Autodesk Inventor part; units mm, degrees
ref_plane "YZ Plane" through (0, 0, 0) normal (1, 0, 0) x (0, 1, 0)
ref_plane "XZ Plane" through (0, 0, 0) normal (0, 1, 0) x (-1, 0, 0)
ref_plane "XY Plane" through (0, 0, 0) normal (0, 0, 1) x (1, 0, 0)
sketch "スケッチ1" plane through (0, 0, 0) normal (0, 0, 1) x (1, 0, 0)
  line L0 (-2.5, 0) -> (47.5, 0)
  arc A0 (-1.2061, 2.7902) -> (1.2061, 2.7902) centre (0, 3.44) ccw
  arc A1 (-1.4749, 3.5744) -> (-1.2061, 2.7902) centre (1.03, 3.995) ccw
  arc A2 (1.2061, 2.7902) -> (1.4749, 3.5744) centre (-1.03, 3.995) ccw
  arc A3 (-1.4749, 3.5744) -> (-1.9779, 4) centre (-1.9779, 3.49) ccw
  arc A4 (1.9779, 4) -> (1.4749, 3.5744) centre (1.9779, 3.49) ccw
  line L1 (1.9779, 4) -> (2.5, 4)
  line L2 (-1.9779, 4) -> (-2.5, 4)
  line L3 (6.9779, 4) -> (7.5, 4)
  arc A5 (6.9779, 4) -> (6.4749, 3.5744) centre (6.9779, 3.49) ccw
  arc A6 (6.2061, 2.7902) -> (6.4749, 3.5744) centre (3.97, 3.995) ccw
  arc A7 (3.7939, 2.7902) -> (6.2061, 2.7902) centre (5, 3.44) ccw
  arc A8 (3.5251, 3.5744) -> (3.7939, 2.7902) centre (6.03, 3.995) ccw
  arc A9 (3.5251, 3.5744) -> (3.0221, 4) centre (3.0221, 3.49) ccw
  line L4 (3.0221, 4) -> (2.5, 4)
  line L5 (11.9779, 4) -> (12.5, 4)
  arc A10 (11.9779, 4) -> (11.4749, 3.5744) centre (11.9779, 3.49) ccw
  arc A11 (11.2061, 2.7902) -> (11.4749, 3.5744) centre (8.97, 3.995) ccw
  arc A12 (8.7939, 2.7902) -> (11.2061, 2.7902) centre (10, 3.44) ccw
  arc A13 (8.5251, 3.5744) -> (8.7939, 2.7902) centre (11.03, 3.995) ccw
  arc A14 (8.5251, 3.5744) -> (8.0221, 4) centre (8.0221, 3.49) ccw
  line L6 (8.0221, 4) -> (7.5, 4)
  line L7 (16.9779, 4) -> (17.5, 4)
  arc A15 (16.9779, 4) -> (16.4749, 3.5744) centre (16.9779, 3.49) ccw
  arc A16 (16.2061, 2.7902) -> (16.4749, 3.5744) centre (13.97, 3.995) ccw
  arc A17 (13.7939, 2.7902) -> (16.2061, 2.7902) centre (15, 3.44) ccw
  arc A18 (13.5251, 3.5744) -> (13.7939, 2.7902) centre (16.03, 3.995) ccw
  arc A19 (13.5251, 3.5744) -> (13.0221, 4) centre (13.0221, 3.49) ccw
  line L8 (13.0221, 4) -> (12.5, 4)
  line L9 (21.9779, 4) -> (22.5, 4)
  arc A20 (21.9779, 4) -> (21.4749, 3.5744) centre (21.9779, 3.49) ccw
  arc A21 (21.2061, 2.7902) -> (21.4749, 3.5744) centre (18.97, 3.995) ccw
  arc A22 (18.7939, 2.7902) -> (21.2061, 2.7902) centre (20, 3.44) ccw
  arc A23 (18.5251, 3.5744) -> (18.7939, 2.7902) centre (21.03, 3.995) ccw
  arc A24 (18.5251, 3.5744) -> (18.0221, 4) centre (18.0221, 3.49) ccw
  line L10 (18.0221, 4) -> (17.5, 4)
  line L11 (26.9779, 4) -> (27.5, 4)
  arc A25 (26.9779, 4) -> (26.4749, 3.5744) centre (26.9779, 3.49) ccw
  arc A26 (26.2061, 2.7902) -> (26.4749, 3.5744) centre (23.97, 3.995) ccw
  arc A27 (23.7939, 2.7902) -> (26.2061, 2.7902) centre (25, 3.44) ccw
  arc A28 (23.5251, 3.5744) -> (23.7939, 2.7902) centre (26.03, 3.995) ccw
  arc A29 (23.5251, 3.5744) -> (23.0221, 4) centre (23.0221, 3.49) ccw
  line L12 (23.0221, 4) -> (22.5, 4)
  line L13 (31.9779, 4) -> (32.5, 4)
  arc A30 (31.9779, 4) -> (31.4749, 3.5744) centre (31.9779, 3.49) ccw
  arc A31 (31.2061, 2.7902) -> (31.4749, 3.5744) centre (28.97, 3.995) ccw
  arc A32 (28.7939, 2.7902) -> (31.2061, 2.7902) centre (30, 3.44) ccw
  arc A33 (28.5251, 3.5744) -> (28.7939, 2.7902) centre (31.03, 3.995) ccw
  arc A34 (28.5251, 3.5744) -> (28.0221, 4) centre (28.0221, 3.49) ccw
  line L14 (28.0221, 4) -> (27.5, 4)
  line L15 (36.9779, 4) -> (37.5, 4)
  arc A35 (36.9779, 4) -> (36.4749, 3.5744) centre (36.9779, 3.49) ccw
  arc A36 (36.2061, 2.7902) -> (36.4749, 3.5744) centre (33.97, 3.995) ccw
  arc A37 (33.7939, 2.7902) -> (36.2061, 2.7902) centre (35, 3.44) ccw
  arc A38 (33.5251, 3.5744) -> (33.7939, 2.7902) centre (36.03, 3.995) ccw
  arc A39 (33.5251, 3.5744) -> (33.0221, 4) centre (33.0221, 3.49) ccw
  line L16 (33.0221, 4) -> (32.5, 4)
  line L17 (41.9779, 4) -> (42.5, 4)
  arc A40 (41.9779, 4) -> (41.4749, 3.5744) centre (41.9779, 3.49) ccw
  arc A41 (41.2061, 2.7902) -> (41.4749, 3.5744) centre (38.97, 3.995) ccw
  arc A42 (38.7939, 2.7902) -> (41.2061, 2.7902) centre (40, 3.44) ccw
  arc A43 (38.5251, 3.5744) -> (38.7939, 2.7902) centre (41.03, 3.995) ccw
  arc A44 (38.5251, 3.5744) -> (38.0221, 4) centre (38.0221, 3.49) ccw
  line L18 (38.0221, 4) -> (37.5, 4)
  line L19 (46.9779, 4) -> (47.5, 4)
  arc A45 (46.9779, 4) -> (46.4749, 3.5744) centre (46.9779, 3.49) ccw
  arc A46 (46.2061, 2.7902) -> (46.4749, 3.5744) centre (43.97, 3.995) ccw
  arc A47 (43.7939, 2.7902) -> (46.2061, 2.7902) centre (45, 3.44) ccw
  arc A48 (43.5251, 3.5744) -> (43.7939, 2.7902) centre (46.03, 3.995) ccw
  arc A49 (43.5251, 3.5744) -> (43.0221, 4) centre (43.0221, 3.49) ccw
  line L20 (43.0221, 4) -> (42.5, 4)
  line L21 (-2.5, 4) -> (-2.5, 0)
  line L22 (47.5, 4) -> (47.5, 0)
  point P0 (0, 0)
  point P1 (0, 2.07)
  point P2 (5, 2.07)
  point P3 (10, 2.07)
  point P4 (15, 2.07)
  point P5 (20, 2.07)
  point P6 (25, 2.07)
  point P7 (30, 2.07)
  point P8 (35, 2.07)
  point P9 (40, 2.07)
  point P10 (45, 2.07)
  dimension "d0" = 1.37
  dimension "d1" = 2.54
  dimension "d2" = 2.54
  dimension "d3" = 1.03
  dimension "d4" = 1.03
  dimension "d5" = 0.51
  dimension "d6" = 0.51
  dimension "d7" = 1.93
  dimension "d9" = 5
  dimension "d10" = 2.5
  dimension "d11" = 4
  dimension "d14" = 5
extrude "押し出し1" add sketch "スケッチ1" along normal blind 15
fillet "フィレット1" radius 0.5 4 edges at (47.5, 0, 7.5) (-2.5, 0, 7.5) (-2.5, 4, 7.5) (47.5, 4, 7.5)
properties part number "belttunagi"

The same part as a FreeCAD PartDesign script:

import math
import FreeCAD as App
import Part
import Sketcher

V = App.Vector
Q = App.Units.Quantity


def edges_at(feature, points):
    """Names of the edges that pass closest to the given points."""
    edges = feature.Shape.Edges
    near = lambda p: min(range(len(edges)), key=lambda i: edges[i].distToShape(Part.Vertex(*p))[0])
    return sorted({f"Edge{near(p) + 1}" for p in points})

doc = App.newDocument("Part")
params = doc.addObject("Spreadsheet::Sheet", "Params")
for row, (alias, value) in enumerate([
    ("sketch1_height", "4 mm"),
    ("sketch1_height2", "4 mm"),
    ("sketch1_radius", "0.51 mm"),
    ("sketch1_radius2", "1.37 mm"),
    ("sketch1_radius3", "0.51 mm"),
    ("pad1_length", "15 mm"),
    ("fillet_radius", "0.5 mm"),
], start=1):
    params.set(f"A{row}", alias)
    params.set(f"B{row}", "=" + value)
    params.setAlias(f"B{row}", alias)

body = doc.addObject("PartDesign::Body", "Body")

# Sketch on XY plane
sketch1 = doc.addObject("Sketcher::SketchObject", "Sketch")
body.addObject(sketch1)
sketch1.AttachmentSupport = (doc.XY_Plane, [""])
sketch1.MapMode = "FlatFace"
sketch1.addGeometry(Part.LineSegment(V(-2.5, 4, 0), V(-2.5, 0, 0)), False)
sketch1.addGeometry(Part.LineSegment(V(-2.5, 0, 0), V(47.5, 0, 0)), False)
sketch1.addGeometry(Part.LineSegment(V(47.5, 0, 0), V(47.5, 4, 0)), False)
sketch1.addGeometry(Part.LineSegment(V(47.5, 4, 0), V(46.9779, 4, 0)), False)
sketch1.addGeometry(Part.ArcOfCircle(Part.Circle(V(46.9779, 3.49, 0), V(0, 0, 1), 0.51), math.radians(90), math.radians(170.474886)), False)
sketch1.addGeometry(Part.ArcOfCircle(Part.Circle(V(43.971739, 3.994239, 0), V(0, 0, 1), 2.538125), math.radians(-28.319084), math.radians(-9.521239)), False)
sketch1.addGeometry(Part.ArcOfCircle(Part.Circle(V(45, 3.44, 0), V(0, 0, 1), 1.370006), math.radians(-151.685931), math.radians(-28.314069)), False)
sketch1.addGeometry(Part.ArcOfCircle(Part.Circle(V(46.031843, 3.995467, 0), V(0, 0, 1), 2.541861), math.radians(-170.464821), math.radians(-151.694857)), False)
sketch1.addGeometry(Part.ArcOfCircle(Part.Circle(V(43.0221, 3.49, 0), V(0, 0, 1), 0.510032), math.radians(9.525114), math.radians(90)), False)
sketch1.addGeometry(Part.LineSegment(V(43.0221, 4, 0), V(41.9779, 4, 0)), False)
sketch1.addGeometry(Part.ArcOfCircle(Part.Circle(V(41.9779, 3.49, 0), V(0, 0, 1), 0.51), math.radians(90), math.radians(170.474886)), False)
sketch1.addGeometry(Part.ArcOfCircle(Part.Circle(V(38.971739, 3.994239, 0), V(0, 0, 1), 2.538125), math.radians(-28.319084), math.radians(-9.521239)), False)
sketch1.addGeometry(Part.ArcOfCircle(Part.Circle(V(40, 3.44, 0), V(0, 0, 1), 1.370006), math.radians(-151.685931), math.radians(-28.314069)), False)
sketch1.addGeometry(Part.ArcOfCircle(Part.Circle(V(41.031843, 3.995467, 0), V(0, 0, 1), 2.541861), math.radians(-170.464821), math.radians(-151.694857)), False)
sketch1.addGeometry(Part.ArcOfCircle(Part.Circle(V(38.0221, 3.49, 0), V(0, 0, 1), 0.510032), math.radians(9.525114), math.radians(90)), False)
sketch1.addGeometry(Part.LineSegment(V(38.0221, 4, 0), V(36.9779, 4, 0)), False)
sketch1.addGeometry(Part.ArcOfCircle(Part.Circle(V(36.9779, 3.49, 0), V(0, 0, 1), 0.51), math.radians(90), math.radians(170.474886)), False)
sketch1.addGeometry(Part.ArcOfCircle(Part.Circle(V(33.971739, 3.994239, 0), V(0, 0, 1), 2.538125), math.radians(-28.319084), math.radians(-9.521239)), False)
sketch1.addGeometry(Part.ArcOfCircle(Part.Circle(V(35, 3.44, 0), V(0, 0, 1), 1.370006), math.radians(-151.685931), math.radians(-28.314069)), False)
sketch1.addGeometry(Part.ArcOfCircle(Part.Circle(V(36.031843, 3.995467, 0), V(0, 0, 1), 2.541861), math.radians(-170.464821), math.radians(-151.694857)), False)
sketch1.addGeometry(Part.ArcOfCircle(Part.Circle(V(33.0221, 3.49, 0), V(0, 0, 1), 0.510032), math.radians(9.525114), math.radians(90)), False)
sketch1.addGeometry(Part.LineSegment(V(33.0221, 4, 0), V(31.9779, 4, 0)), False)
sketch1.addGeometry(Part.ArcOfCircle(Part.Circle(V(31.9779, 3.49, 0), V(0, 0, 1), 0.51), math.radians(90), math.radians(170.474886)), False)
sketch1.addGeometry(Part.ArcOfCircle(Part.Circle(V(28.971739, 3.994239, 0), V(0, 0, 1), 2.538125), math.radians(-28.319084), math.radians(-9.521239)), False)
sketch1.addGeometry(Part.ArcOfCircle(Part.Circle(V(30, 3.44, 0), V(0, 0, 1), 1.370006), math.radians(-151.685931), math.radians(-28.314069)), False)
sketch1.addGeometry(Part.ArcOfCircle(Part.Circle(V(31.031843, 3.995467, 0), V(0, 0, 1), 2.541861), math.radians(-170.464821), math.radians(-151.694857)), False)
sketch1.addGeometry(Part.ArcOfCircle(Part.Circle(V(28.0221, 3.49, 0), V(0, 0, 1), 0.510032), math.radians(9.525114), math.radians(90)), False)
sketch1.addGeometry(Part.LineSegment(V(28.0221, 4, 0), V(26.9779, 4, 0)), False)
sketch1.addGeometry(Part.ArcOfCircle(Part.Circle(V(26.9779, 3.49, 0), V(0, 0, 1), 0.51), math.radians(90), math.radians(170.474886)), False)
sketch1.addGeometry(Part.ArcOfCircle(Part.Circle(V(23.971739, 3.994239, 0), V(0, 0, 1), 2.538125), math.radians(-28.319084), math.radians(-9.521239)), False)
sketch1.addGeometry(Part.ArcOfCircle(Part.Circle(V(25, 3.44, 0), V(0, 0, 1), 1.370006), math.radians(-151.685931), math.radians(-28.314069)), False)
sketch1.addGeometry(Part.ArcOfCircle(Part.Circle(V(26.031843, 3.995467, 0), V(0, 0, 1), 2.541861), math.radians(-170.464821), math.radians(-151.694857)), False)
sketch1.addGeometry(Part.ArcOfCircle(Part.Circle(V(23.0221, 3.49, 0), V(0, 0, 1), 0.510032), math.radians(9.525114), math.radians(90)), False)
sketch1.addGeometry(Part.LineSegment(V(23.0221, 4, 0), V(21.9779, 4, 0)), False)
sketch1.addGeometry(Part.ArcOfCircle(Part.Circle(V(21.9779, 3.49, 0), V(0, 0, 1), 0.51), math.radians(90), math.radians(170.474886)), False)
sketch1.addGeometry(Part.ArcOfCircle(Part.Circle(V(18.971739, 3.994239, 0), V(0, 0, 1), 2.538125), math.radians(-28.319084), math.radians(-9.521239)), False)
sketch1.addGeometry(Part.ArcOfCircle(Part.Circle(V(20, 3.44, 0), V(0, 0, 1), 1.370006), math.radians(-151.685931), math.radians(-28.314069)), False)
sketch1.addGeometry(Part.ArcOfCircle(Part.Circle(V(21.031843, 3.995467, 0), V(0, 0, 1), 2.541861), math.radians(-170.464821), math.radians(-151.694857)), False)
sketch1.addGeometry(Part.ArcOfCircle(Part.Circle(V(18.0221, 3.49, 0), V(0, 0, 1), 0.510032), math.radians(9.525114), math.radians(90)), False)
sketch1.addGeometry(Part.LineSegment(V(18.0221, 4, 0), V(16.9779, 4, 0)), False)
sketch1.addGeometry(Part.ArcOfCircle(Part.Circle(V(16.9779, 3.49, 0), V(0, 0, 1), 0.51), math.radians(90), math.radians(170.474886)), False)
sketch1.addGeometry(Part.ArcOfCircle(Part.Circle(V(13.971739, 3.994239, 0), V(0, 0, 1), 2.538125), math.radians(-28.319084), math.radians(-9.521239)), False)
sketch1.addGeometry(Part.ArcOfCircle(Part.Circle(V(15, 3.44, 0), V(0, 0, 1), 1.370006), math.radians(-151.685931), math.radians(-28.314069)), False)
sketch1.addGeometry(Part.ArcOfCircle(Part.Circle(V(16.031843, 3.995467, 0), V(0, 0, 1), 2.541861), math.radians(-170.464821), math.radians(-151.694857)), False)
sketch1.addGeometry(Part.ArcOfCircle(Part.Circle(V(13.0221, 3.49, 0), V(0, 0, 1), 0.510032), math.radians(9.525114), math.radians(90)), False)
sketch1.addGeometry(Part.LineSegment(V(13.0221, 4, 0), V(11.9779, 4, 0)), False)
sketch1.addGeometry(Part.ArcOfCircle(Part.Circle(V(11.9779, 3.49, 0), V(0, 0, 1), 0.51), math.radians(90), math.radians(170.474886)), False)
sketch1.addGeometry(Part.ArcOfCircle(Part.Circle(V(8.971739, 3.994239, 0), V(0, 0, 1), 2.538125), math.radians(-28.319084), math.radians(-9.521239)), False)
sketch1.addGeometry(Part.ArcOfCircle(Part.Circle(V(10, 3.44, 0), V(0, 0, 1), 1.370006), math.radians(-151.685931), math.radians(-28.314069)), False)
sketch1.addGeometry(Part.ArcOfCircle(Part.Circle(V(11.031843, 3.995467, 0), V(0, 0, 1), 2.541861), math.radians(-170.464821), math.radians(-151.694857)), False)
sketch1.addGeometry(Part.ArcOfCircle(Part.Circle(V(8.0221, 3.49, 0), V(0, 0, 1), 0.510032), math.radians(9.525114), math.radians(90)), False)
sketch1.addGeometry(Part.LineSegment(V(8.0221, 4, 0), V(6.9779, 4, 0)), False)
sketch1.addGeometry(Part.ArcOfCircle(Part.Circle(V(6.9779, 3.49, 0), V(0, 0, 1), 0.51), math.radians(90), math.radians(170.474886)), False)
sketch1.addGeometry(Part.ArcOfCircle(Part.Circle(V(3.971739, 3.994239, 0), V(0, 0, 1), 2.538125), math.radians(-28.319084), math.radians(-9.521239)), False)
sketch1.addGeometry(Part.ArcOfCircle(Part.Circle(V(5, 3.44, 0), V(0, 0, 1), 1.370006), math.radians(-151.685931), math.radians(-28.314069)), False)
sketch1.addGeometry(Part.ArcOfCircle(Part.Circle(V(6.031843, 3.995467, 0), V(0, 0, 1), 2.541861), math.radians(-170.464821), math.radians(-151.694857)), False)
sketch1.addGeometry(Part.ArcOfCircle(Part.Circle(V(3.0221, 3.49, 0), V(0, 0, 1), 0.510032), math.radians(9.525114), math.radians(90)), False)
sketch1.addGeometry(Part.LineSegment(V(3.0221, 4, 0), V(1.9779, 4, 0)), False)
sketch1.addGeometry(Part.ArcOfCircle(Part.Circle(V(1.9779, 3.49, 0), V(0, 0, 1), 0.51), math.radians(90), math.radians(170.474886)), False)
sketch1.addGeometry(Part.ArcOfCircle(Part.Circle(V(-1.028261, 3.994239, 0), V(0, 0, 1), 2.538125), math.radians(-28.319084), math.radians(-9.521239)), False)
sketch1.addGeometry(Part.ArcOfCircle(Part.Circle(V(0, 3.44, 0), V(0, 0, 1), 1.370006), math.radians(-151.685931), math.radians(-28.314069)), False)
sketch1.addGeometry(Part.ArcOfCircle(Part.Circle(V(1.031843, 3.995467, 0), V(0, 0, 1), 2.541861), math.radians(-170.464821), math.radians(-151.694857)), False)
sketch1.addGeometry(Part.ArcOfCircle(Part.Circle(V(-1.9779, 3.49, 0), V(0, 0, 1), 0.510032), math.radians(9.525114), math.radians(90)), False)
sketch1.addGeometry(Part.LineSegment(V(-1.9779, 4, 0), V(-2.5, 4, 0)), False)
sketch1.addConstraint(Sketcher.Constraint("Coincident", 0, 2, 1, 1))
sketch1.addConstraint(Sketcher.Constraint("Coincident", 1, 2, 2, 1))
sketch1.addConstraint(Sketcher.Constraint("Coincident", 2, 2, 3, 1))
sketch1.addConstraint(Sketcher.Constraint("Coincident", 3, 2, 4, 1))
sketch1.addConstraint(Sketcher.Constraint("Coincident", 4, 2, 5, 2))
sketch1.addConstraint(Sketcher.Constraint("Coincident", 5, 1, 6, 2))
sketch1.addConstraint(Sketcher.Constraint("Coincident", 6, 1, 7, 2))
sketch1.addConstraint(Sketcher.Constraint("Coincident", 7, 1, 8, 1))
sketch1.addConstraint(Sketcher.Constraint("Coincident", 8, 2, 9, 1))
sketch1.addConstraint(Sketcher.Constraint("Coincident", 9, 2, 10, 1))
sketch1.addConstraint(Sketcher.Constraint("Coincident", 10, 2, 11, 2))
sketch1.addConstraint(Sketcher.Constraint("Coincident", 11, 1, 12, 2))
sketch1.addConstraint(Sketcher.Constraint("Coincident", 12, 1, 13, 2))
sketch1.addConstraint(Sketcher.Constraint("Coincident", 13, 1, 14, 1))
sketch1.addConstraint(Sketcher.Constraint("Coincident", 14, 2, 15, 1))
sketch1.addConstraint(Sketcher.Constraint("Coincident", 15, 2, 16, 1))
sketch1.addConstraint(Sketcher.Constraint("Coincident", 16, 2, 17, 2))
sketch1.addConstraint(Sketcher.Constraint("Coincident", 17, 1, 18, 2))
sketch1.addConstraint(Sketcher.Constraint("Coincident", 18, 1, 19, 2))
sketch1.addConstraint(Sketcher.Constraint("Coincident", 19, 1, 20, 1))
sketch1.addConstraint(Sketcher.Constraint("Coincident", 20, 2, 21, 1))
sketch1.addConstraint(Sketcher.Constraint("Coincident", 21, 2, 22, 1))
sketch1.addConstraint(Sketcher.Constraint("Coincident", 22, 2, 23, 2))
sketch1.addConstraint(Sketcher.Constraint("Coincident", 23, 1, 24, 2))
sketch1.addConstraint(Sketcher.Constraint("Coincident", 24, 1, 25, 2))
sketch1.addConstraint(Sketcher.Constraint("Coincident", 25, 1, 26, 1))
sketch1.addConstraint(Sketcher.Constraint("Coincident", 26, 2, 27, 1))
sketch1.addConstraint(Sketcher.Constraint("Coincident", 27, 2, 28, 1))
sketch1.addConstraint(Sketcher.Constraint("Coincident", 28, 2, 29, 2))
sketch1.addConstraint(Sketcher.Constraint("Coincident", 29, 1, 30, 2))
sketch1.addConstraint(Sketcher.Constraint("Coincident", 30, 1, 31, 2))
sketch1.addConstraint(Sketcher.Constraint("Coincident", 31, 1, 32, 1))
sketch1.addConstraint(Sketcher.Constraint("Coincident", 32, 2, 33, 1))
sketch1.addConstraint(Sketcher.Constraint("Coincident", 33, 2, 34, 1))
sketch1.addConstraint(Sketcher.Constraint("Coincident", 34, 2, 35, 2))
sketch1.addConstraint(Sketcher.Constraint("Coincident", 35, 1, 36, 2))
sketch1.addConstraint(Sketcher.Constraint("Coincident", 36, 1, 37, 2))
sketch1.addConstraint(Sketcher.Constraint("Coincident", 37, 1, 38, 1))
sketch1.addConstraint(Sketcher.Constraint("Coincident", 38, 2, 39, 1))
sketch1.addConstraint(Sketcher.Constraint("Coincident", 39, 2, 40, 1))
sketch1.addConstraint(Sketcher.Constraint("Coincident", 40, 2, 41, 2))
sketch1.addConstraint(Sketcher.Constraint("Coincident", 41, 1, 42, 2))
sketch1.addConstraint(Sketcher.Constraint("Coincident", 42, 1, 43, 2))
sketch1.addConstraint(Sketcher.Constraint("Coincident", 43, 1, 44, 1))
sketch1.addConstraint(Sketcher.Constraint("Coincident", 44, 2, 45, 1))
sketch1.addConstraint(Sketcher.Constraint("Coincident", 45, 2, 46, 1))
sketch1.addConstraint(Sketcher.Constraint("Coincident", 46, 2, 47, 2))
sketch1.addConstraint(Sketcher.Constraint("Coincident", 47, 1, 48, 2))
sketch1.addConstraint(Sketcher.Constraint("Coincident", 48, 1, 49, 2))
sketch1.addConstraint(Sketcher.Constraint("Coincident", 49, 1, 50, 1))
sketch1.addConstraint(Sketcher.Constraint("Coincident", 50, 2, 51, 1))
sketch1.addConstraint(Sketcher.Constraint("Coincident", 51, 2, 52, 1))
sketch1.addConstraint(Sketcher.Constraint("Coincident", 52, 2, 53, 2))
sketch1.addConstraint(Sketcher.Constraint("Coincident", 53, 1, 54, 2))
sketch1.addConstraint(Sketcher.Constraint("Coincident", 54, 1, 55, 2))
sketch1.addConstraint(Sketcher.Constraint("Coincident", 55, 1, 56, 1))
sketch1.addConstraint(Sketcher.Constraint("Coincident", 56, 2, 57, 1))
sketch1.addConstraint(Sketcher.Constraint("Coincident", 57, 2, 58, 1))
sketch1.addConstraint(Sketcher.Constraint("Coincident", 58, 2, 59, 2))
sketch1.addConstraint(Sketcher.Constraint("Coincident", 59, 1, 60, 2))
sketch1.addConstraint(Sketcher.Constraint("Coincident", 60, 1, 61, 2))
sketch1.addConstraint(Sketcher.Constraint("Coincident", 61, 1, 62, 1))
sketch1.addConstraint(Sketcher.Constraint("Coincident", 62, 2, 63, 1))
sketch1.addConstraint(Sketcher.Constraint("Coincident", 63, 2, 0, 1))
sketch1.addConstraint(Sketcher.Constraint("Vertical", 0))
sketch1.addConstraint(Sketcher.Constraint("Horizontal", 1))
sketch1.addConstraint(Sketcher.Constraint("Vertical", 2))
sketch1.addConstraint(Sketcher.Constraint("Horizontal", 3))
sketch1.addConstraint(Sketcher.Constraint("Horizontal", 9))
sketch1.addConstraint(Sketcher.Constraint("Horizontal", 15))
sketch1.addConstraint(Sketcher.Constraint("Horizontal", 21))
sketch1.addConstraint(Sketcher.Constraint("Horizontal", 27))
sketch1.addConstraint(Sketcher.Constraint("Horizontal", 33))
sketch1.addConstraint(Sketcher.Constraint("Horizontal", 39))
sketch1.addConstraint(Sketcher.Constraint("Horizontal", 45))
sketch1.addConstraint(Sketcher.Constraint("Horizontal", 51))
sketch1.addConstraint(Sketcher.Constraint("Horizontal", 57))
sketch1.addConstraint(Sketcher.Constraint("Horizontal", 63))
sketch1.addConstraint(Sketcher.Constraint("PointOnObject", 60, 3, -2))
sketch1.addConstraint(Sketcher.Constraint("PointOnObject", 0, 2, -1))
sketch1.addConstraint(Sketcher.Constraint("DistanceY", 0, 2, 0, 1, Q("4 mm")))
sketch1.addConstraint(Sketcher.Constraint("DistanceY", 2, 1, 2, 2, Q("4 mm")))
sketch1.addConstraint(Sketcher.Constraint("Radius", 4, Q("0.51 mm")))
sketch1.addConstraint(Sketcher.Constraint("Radius", 6, Q("1.37 mm")))
sketch1.addConstraint(Sketcher.Constraint("Radius", 8, Q("0.51 mm")))
sketch1.addConstraint(Sketcher.Constraint("Radius", 10, Q("0.51 mm")))
sketch1.addConstraint(Sketcher.Constraint("Radius", 12, Q("1.37 mm")))
sketch1.addConstraint(Sketcher.Constraint("Radius", 14, Q("0.51 mm")))
sketch1.addConstraint(Sketcher.Constraint("Radius", 16, Q("0.51 mm")))
sketch1.addConstraint(Sketcher.Constraint("Radius", 18, Q("1.37 mm")))
sketch1.addConstraint(Sketcher.Constraint("Radius", 20, Q("0.51 mm")))
sketch1.addConstraint(Sketcher.Constraint("Radius", 22, Q("0.51 mm")))
sketch1.addConstraint(Sketcher.Constraint("Radius", 24, Q("1.37 mm")))
sketch1.addConstraint(Sketcher.Constraint("Radius", 26, Q("0.51 mm")))
sketch1.addConstraint(Sketcher.Constraint("Radius", 28, Q("0.51 mm")))
sketch1.addConstraint(Sketcher.Constraint("Radius", 30, Q("1.37 mm")))
sketch1.addConstraint(Sketcher.Constraint("Radius", 32, Q("0.51 mm")))
sketch1.addConstraint(Sketcher.Constraint("Radius", 34, Q("0.51 mm")))
sketch1.addConstraint(Sketcher.Constraint("Radius", 36, Q("1.37 mm")))
sketch1.addConstraint(Sketcher.Constraint("Radius", 38, Q("0.51 mm")))
sketch1.addConstraint(Sketcher.Constraint("Radius", 40, Q("0.51 mm")))
sketch1.addConstraint(Sketcher.Constraint("Radius", 42, Q("1.37 mm")))
sketch1.addConstraint(Sketcher.Constraint("Radius", 44, Q("0.51 mm")))
sketch1.addConstraint(Sketcher.Constraint("Radius", 46, Q("0.51 mm")))
sketch1.addConstraint(Sketcher.Constraint("Radius", 48, Q("1.37 mm")))
sketch1.addConstraint(Sketcher.Constraint("Radius", 50, Q("0.51 mm")))
sketch1.addConstraint(Sketcher.Constraint("Radius", 52, Q("0.51 mm")))
sketch1.addConstraint(Sketcher.Constraint("Radius", 54, Q("1.37 mm")))
sketch1.addConstraint(Sketcher.Constraint("Radius", 56, Q("0.51 mm")))
sketch1.addConstraint(Sketcher.Constraint("Radius", 58, Q("0.51 mm")))
sketch1.addConstraint(Sketcher.Constraint("Radius", 60, Q("1.37 mm")))
sketch1.addConstraint(Sketcher.Constraint("Radius", 62, Q("0.51 mm")))
sketch1.addConstraint(Sketcher.Constraint("DistanceX", -1, 1, 54, 3, Q("5 mm")))
sketch1.addConstraint(Sketcher.Constraint("DistanceY", -1, 1, 8, 2, Q("4 mm")))
sketch1.addConstraint(Sketcher.Constraint("DistanceY", -1, 1, 14, 2, Q("4 mm")))
sketch1.addConstraint(Sketcher.Constraint("DistanceY", -1, 1, 20, 2, Q("4 mm")))
sketch1.addConstraint(Sketcher.Constraint("DistanceY", -1, 1, 26, 2, Q("4 mm")))
sketch1.addConstraint(Sketcher.Constraint("DistanceY", -1, 1, 32, 2, Q("4 mm")))
sketch1.addConstraint(Sketcher.Constraint("DistanceY", -1, 1, 38, 2, Q("4 mm")))
sketch1.addConstraint(Sketcher.Constraint("DistanceY", -1, 1, 44, 2, Q("4 mm")))
sketch1.addConstraint(Sketcher.Constraint("DistanceY", -1, 1, 50, 2, Q("4 mm")))
sketch1.addConstraint(Sketcher.Constraint("DistanceY", -1, 1, 56, 2, Q("4 mm")))
sketch1.addConstraint(Sketcher.Constraint("DistanceX", 0, 2, -1, 1, Q("2.5 mm")))
sketch1.addConstraint(Sketcher.Constraint("DistanceX", 1, 1, 1, 2, Q("50 mm")))
sketch1.addConstraint(Sketcher.Constraint("DistanceX", -1, 1, 6, 3, Q("45 mm")))
sketch1.addConstraint(Sketcher.Constraint("DistanceX", -1, 1, 12, 3, Q("40 mm")))
sketch1.addConstraint(Sketcher.Constraint("DistanceX", -1, 1, 18, 3, Q("35 mm")))
sketch1.addConstraint(Sketcher.Constraint("DistanceX", -1, 1, 24, 3, Q("30 mm")))
sketch1.addConstraint(Sketcher.Constraint("DistanceX", -1, 1, 30, 3, Q("25 mm")))
sketch1.addConstraint(Sketcher.Constraint("DistanceX", -1, 1, 36, 3, Q("20 mm")))
sketch1.addConstraint(Sketcher.Constraint("DistanceX", -1, 1, 42, 3, Q("15 mm")))
sketch1.addConstraint(Sketcher.Constraint("DistanceX", -1, 1, 48, 3, Q("10 mm")))
sketch1.addConstraint(Sketcher.Constraint("Radius", 5, Q("2.5381 mm")))
sketch1.addConstraint(Sketcher.Constraint("Radius", 7, Q("2.5419 mm")))
sketch1.addConstraint(Sketcher.Constraint("Radius", 11, Q("2.5381 mm")))
sketch1.addConstraint(Sketcher.Constraint("Radius", 13, Q("2.5419 mm")))
sketch1.addConstraint(Sketcher.Constraint("Radius", 17, Q("2.5381 mm")))
sketch1.addConstraint(Sketcher.Constraint("Radius", 19, Q("2.5419 mm")))
sketch1.addConstraint(Sketcher.Constraint("Radius", 23, Q("2.5381 mm")))
sketch1.addConstraint(Sketcher.Constraint("Radius", 25, Q("2.5419 mm")))
sketch1.addConstraint(Sketcher.Constraint("Radius", 29, Q("2.5381 mm")))
sketch1.addConstraint(Sketcher.Constraint("Radius", 31, Q("2.5419 mm")))
sketch1.addConstraint(Sketcher.Constraint("Radius", 35, Q("2.5381 mm")))
sketch1.addConstraint(Sketcher.Constraint("Radius", 37, Q("2.5419 mm")))
sketch1.addConstraint(Sketcher.Constraint("Radius", 41, Q("2.5381 mm")))
sketch1.addConstraint(Sketcher.Constraint("Radius", 43, Q("2.5419 mm")))
sketch1.addConstraint(Sketcher.Constraint("Radius", 47, Q("2.5381 mm")))
sketch1.addConstraint(Sketcher.Constraint("Radius", 49, Q("2.5419 mm")))
sketch1.addConstraint(Sketcher.Constraint("Radius", 53, Q("2.5381 mm")))
sketch1.addConstraint(Sketcher.Constraint("Radius", 55, Q("2.5419 mm")))
sketch1.addConstraint(Sketcher.Constraint("Radius", 59, Q("2.5381 mm")))
sketch1.addConstraint(Sketcher.Constraint("Radius", 61, Q("2.5419 mm")))
sketch1.addConstraint(Sketcher.Constraint("DistanceX", 3, 2, 3, 1, Q("0.522 mm")))
sketch1.addConstraint(Sketcher.Constraint("DistanceX", 63, 2, 63, 1, Q("0.522 mm")))
sketch1.addConstraint(Sketcher.Constraint("DistanceY", -1, 1, 6, 3, Q("3.44 mm")))
sketch1.addConstraint(Sketcher.Constraint("DistanceY", -1, 1, 12, 3, Q("3.44 mm")))
sketch1.addConstraint(Sketcher.Constraint("DistanceY", -1, 1, 18, 3, Q("3.44 mm")))
sketch1.addConstraint(Sketcher.Constraint("DistanceY", -1, 1, 24, 3, Q("3.44 mm")))
sketch1.addConstraint(Sketcher.Constraint("DistanceY", -1, 1, 30, 3, Q("3.44 mm")))
sketch1.addConstraint(Sketcher.Constraint("DistanceY", -1, 1, 36, 3, Q("3.44 mm")))
sketch1.addConstraint(Sketcher.Constraint("DistanceY", -1, 1, 42, 3, Q("3.44 mm")))
sketch1.addConstraint(Sketcher.Constraint("DistanceY", -1, 1, 48, 3, Q("3.44 mm")))
sketch1.addConstraint(Sketcher.Constraint("DistanceY", -1, 1, 54, 3, Q("3.44 mm")))
sketch1.addConstraint(Sketcher.Constraint("DistanceY", -1, 1, 60, 3, Q("3.44 mm")))
sketch1.addConstraint(Sketcher.Constraint("DistanceX", 9, 2, 9, 1, Q("1.0442 mm")))
sketch1.addConstraint(Sketcher.Constraint("DistanceX", 15, 2, 15, 1, Q("1.0442 mm")))
sketch1.addConstraint(Sketcher.Constraint("DistanceX", 21, 2, 21, 1, Q("1.0442 mm")))
sketch1.addConstraint(Sketcher.Constraint("DistanceX", 27, 2, 27, 1, Q("1.0442 mm")))
sketch1.addConstraint(Sketcher.Constraint("DistanceX", 33, 2, 33, 1, Q("1.0442 mm")))
sketch1.addConstraint(Sketcher.Constraint("DistanceX", 39, 2, 39, 1, Q("1.0442 mm")))
sketch1.addConstraint(Sketcher.Constraint("DistanceX", 45, 2, 45, 1, Q("1.0442 mm")))
sketch1.addConstraint(Sketcher.Constraint("DistanceX", 51, 2, 51, 1, Q("1.0442 mm")))
sketch1.addConstraint(Sketcher.Constraint("DistanceX", 57, 2, 57, 1, Q("1.0442 mm")))
sketch1.addConstraint(Sketcher.Constraint("DistanceX", -1, 1, 4, 3, Q("46.978 mm")))
sketch1.addConstraint(Sketcher.Constraint("DistanceX", -1, 1, 8, 3, Q("43.022 mm")))
sketch1.addConstraint(Sketcher.Constraint("DistanceX", -1, 1, 10, 3, Q("41.978 mm")))
sketch1.addConstraint(Sketcher.Constraint("DistanceX", -1, 1, 14, 3, Q("38.022 mm")))
sketch1.addConstraint(Sketcher.Constraint("DistanceX", -1, 1, 16, 3, Q("36.978 mm")))
sketch1.addConstraint(Sketcher.Constraint("DistanceX", -1, 1, 20, 3, Q("33.022 mm")))
sketch1.addConstraint(Sketcher.Constraint("DistanceX", -1, 1, 22, 3, Q("31.978 mm")))
sketch1.addConstraint(Sketcher.Constraint("DistanceX", -1, 1, 26, 3, Q("28.022 mm")))
sketch1.addConstraint(Sketcher.Constraint("DistanceX", -1, 1, 28, 3, Q("26.978 mm")))
sketch1.addConstraint(Sketcher.Constraint("DistanceX", -1, 1, 32, 3, Q("23.022 mm")))
sketch1.addConstraint(Sketcher.Constraint("DistanceX", -1, 1, 34, 3, Q("21.978 mm")))
sketch1.addConstraint(Sketcher.Constraint("DistanceX", -1, 1, 38, 3, Q("18.022 mm")))
sketch1.addConstraint(Sketcher.Constraint("DistanceX", -1, 1, 40, 3, Q("16.978 mm")))
sketch1.addConstraint(Sketcher.Constraint("DistanceX", -1, 1, 44, 3, Q("13.022 mm")))
sketch1.addConstraint(Sketcher.Constraint("DistanceX", -1, 1, 46, 3, Q("11.978 mm")))
sketch1.addConstraint(Sketcher.Constraint("DistanceX", -1, 1, 50, 3, Q("8.022 mm")))
sketch1.addConstraint(Sketcher.Constraint("DistanceX", -1, 1, 52, 3, Q("6.978 mm")))
sketch1.addConstraint(Sketcher.Constraint("DistanceX", -1, 1, 56, 3, Q("3.022 mm")))
sketch1.addConstraint(Sketcher.Constraint("DistanceX", -1, 1, 58, 3, Q("1.978 mm")))
sketch1.addConstraint(Sketcher.Constraint("DistanceX", 62, 3, -1, 1, Q("1.978 mm")))
sketch1.addConstraint(Sketcher.Constraint("DistanceX", -1, 1, 4, 2, Q("46.475 mm")))
sketch1.addConstraint(Sketcher.Constraint("DistanceX", -1, 1, 5, 1, Q("46.206 mm")))
sketch1.addConstraint(Sketcher.Constraint("DistanceX", -1, 1, 6, 1, Q("43.794 mm")))
sketch1.addConstraint(Sketcher.Constraint("DistanceX", -1, 1, 7, 1, Q("43.525 mm")))
sketch1.addConstraint(Sketcher.Constraint("DistanceX", -1, 1, 8, 2, Q("43.022 mm")))
sketch1.addConstraint(Sketcher.Constraint("DistanceX", -1, 1, 10, 2, Q("41.475 mm")))
sketch1.addConstraint(Sketcher.Constraint("DistanceX", -1, 1, 11, 1, Q("41.206 mm")))
sketch1.addConstraint(Sketcher.Constraint("DistanceX", -1, 1, 12, 1, Q("38.794 mm")))
sketch1.addConstraint(Sketcher.Constraint("DistanceX", -1, 1, 13, 1, Q("38.525 mm")))
sketch1.addConstraint(Sketcher.Constraint("DistanceX", -1, 1, 14, 2, Q("38.022 mm")))
sketch1.addConstraint(Sketcher.Constraint("DistanceX", -1, 1, 16, 2, Q("36.475 mm")))
sketch1.addConstraint(Sketcher.Constraint("DistanceX", -1, 1, 17, 1, Q("36.206 mm")))
sketch1.addConstraint(Sketcher.Constraint("DistanceX", -1, 1, 18, 1, Q("33.794 mm")))
sketch1.addConstraint(Sketcher.Constraint("DistanceX", -1, 1, 19, 1, Q("33.525 mm")))
sketch1.addConstraint(Sketcher.Constraint("DistanceX", -1, 1, 20, 2, Q("33.022 mm")))
sketch1.addConstraint(Sketcher.Constraint("DistanceX", -1, 1, 22, 2, Q("31.475 mm")))
sketch1.addConstraint(Sketcher.Constraint("DistanceX", -1, 1, 23, 1, Q("31.206 mm")))
sketch1.addConstraint(Sketcher.Constraint("DistanceX", -1, 1, 24, 1, Q("28.794 mm")))
sketch1.addConstraint(Sketcher.Constraint("DistanceX", -1, 1, 25, 1, Q("28.525 mm")))
sketch1.addConstraint(Sketcher.Constraint("DistanceX", -1, 1, 26, 2, Q("28.022 mm")))
sketch1.addConstraint(Sketcher.Constraint("DistanceX", -1, 1, 28, 2, Q("26.475 mm")))
sketch1.addConstraint(Sketcher.Constraint("DistanceX", -1, 1, 29, 1, Q("26.206 mm")))
sketch1.addConstraint(Sketcher.Constraint("DistanceX", -1, 1, 30, 1, Q("23.794 mm")))
sketch1.addConstraint(Sketcher.Constraint("DistanceX", -1, 1, 31, 1, Q("23.525 mm")))
sketch1.addConstraint(Sketcher.Constraint("DistanceX", -1, 1, 32, 2, Q("23.022 mm")))
sketch1.addConstraint(Sketcher.Constraint("DistanceX", -1, 1, 34, 2, Q("21.475 mm")))
sketch1.addConstraint(Sketcher.Constraint("DistanceX", -1, 1, 35, 1, Q("21.206 mm")))
sketch1.addConstraint(Sketcher.Constraint("DistanceX", -1, 1, 36, 1, Q("18.794 mm")))
sketch1.addConstraint(Sketcher.Constraint("DistanceX", -1, 1, 37, 1, Q("18.525 mm")))
sketch1.addConstraint(Sketcher.Constraint("DistanceX", -1, 1, 38, 2, Q("18.022 mm")))
sketch1.addConstraint(Sketcher.Constraint("DistanceX", -1, 1, 40, 2, Q("16.475 mm")))
sketch1.addConstraint(Sketcher.Constraint("DistanceX", -1, 1, 41, 1, Q("16.206 mm")))
sketch1.addConstraint(Sketcher.Constraint("DistanceX", -1, 1, 42, 1, Q("13.794 mm")))
sketch1.addConstraint(Sketcher.Constraint("DistanceX", -1, 1, 43, 1, Q("13.525 mm")))
sketch1.addConstraint(Sketcher.Constraint("DistanceX", -1, 1, 44, 2, Q("13.022 mm")))
sketch1.addConstraint(Sketcher.Constraint("DistanceX", -1, 1, 46, 2, Q("11.475 mm")))
sketch1.addConstraint(Sketcher.Constraint("DistanceX", -1, 1, 47, 1, Q("11.206 mm")))
sketch1.addConstraint(Sketcher.Constraint("DistanceX", -1, 1, 48, 1, Q("8.794 mm")))
sketch1.addConstraint(Sketcher.Constraint("DistanceX", -1, 1, 49, 1, Q("8.525 mm")))
sketch1.addConstraint(Sketcher.Constraint("DistanceX", -1, 1, 50, 2, Q("8.022 mm")))
sketch1.addConstraint(Sketcher.Constraint("DistanceX", -1, 1, 52, 2, Q("6.475 mm")))
sketch1.addConstraint(Sketcher.Constraint("DistanceX", -1, 1, 53, 1, Q("6.206 mm")))
sketch1.addConstraint(Sketcher.Constraint("DistanceX", -1, 1, 54, 1, Q("3.794 mm")))
sketch1.addConstraint(Sketcher.Constraint("DistanceX", -1, 1, 55, 1, Q("3.525 mm")))
sketch1.addConstraint(Sketcher.Constraint("DistanceX", -1, 1, 56, 2, Q("3.022 mm")))
sketch1.addConstraint(Sketcher.Constraint("DistanceX", -1, 1, 58, 2, Q("1.475 mm")))
sketch1.addConstraint(Sketcher.Constraint("DistanceX", -1, 1, 59, 1, Q("1.206 mm")))
sketch1.addConstraint(Sketcher.Constraint("DistanceX", 60, 1, -1, 1, Q("1.206 mm")))
sketch1.addConstraint(Sketcher.Constraint("DistanceX", 61, 1, -1, 1, Q("1.475 mm")))
sketch1.setExpression("Constraints[80]", "Params.sketch1_height")
sketch1.setExpression("Constraints[81]", "Params.sketch1_height2")
sketch1.setExpression("Constraints[82]", "Params.sketch1_radius")
sketch1.setExpression("Constraints[83]", "Params.sketch1_radius2")
sketch1.setExpression("Constraints[84]", "Params.sketch1_radius3")
pad1 = doc.addObject("PartDesign::Pad", "Pad")
body.addObject(pad1)
pad1.Profile = sketch1
pad1.setExpression("Length", "Params.pad1_length")
doc.recompute()

fillet = doc.addObject("PartDesign::Fillet", "Fillet")
body.addObject(fillet)
fillet.Base = (pad1, edges_at(pad1, [
    (47.5, 0, 7.5),
    (-2.5, 0, 7.5),
    (-2.5, 4, 7.5),
    (47.5, 4, 7.5),
]))
fillet.setExpression("Radius", "Params.fillet_radius")

doc.recompute()
